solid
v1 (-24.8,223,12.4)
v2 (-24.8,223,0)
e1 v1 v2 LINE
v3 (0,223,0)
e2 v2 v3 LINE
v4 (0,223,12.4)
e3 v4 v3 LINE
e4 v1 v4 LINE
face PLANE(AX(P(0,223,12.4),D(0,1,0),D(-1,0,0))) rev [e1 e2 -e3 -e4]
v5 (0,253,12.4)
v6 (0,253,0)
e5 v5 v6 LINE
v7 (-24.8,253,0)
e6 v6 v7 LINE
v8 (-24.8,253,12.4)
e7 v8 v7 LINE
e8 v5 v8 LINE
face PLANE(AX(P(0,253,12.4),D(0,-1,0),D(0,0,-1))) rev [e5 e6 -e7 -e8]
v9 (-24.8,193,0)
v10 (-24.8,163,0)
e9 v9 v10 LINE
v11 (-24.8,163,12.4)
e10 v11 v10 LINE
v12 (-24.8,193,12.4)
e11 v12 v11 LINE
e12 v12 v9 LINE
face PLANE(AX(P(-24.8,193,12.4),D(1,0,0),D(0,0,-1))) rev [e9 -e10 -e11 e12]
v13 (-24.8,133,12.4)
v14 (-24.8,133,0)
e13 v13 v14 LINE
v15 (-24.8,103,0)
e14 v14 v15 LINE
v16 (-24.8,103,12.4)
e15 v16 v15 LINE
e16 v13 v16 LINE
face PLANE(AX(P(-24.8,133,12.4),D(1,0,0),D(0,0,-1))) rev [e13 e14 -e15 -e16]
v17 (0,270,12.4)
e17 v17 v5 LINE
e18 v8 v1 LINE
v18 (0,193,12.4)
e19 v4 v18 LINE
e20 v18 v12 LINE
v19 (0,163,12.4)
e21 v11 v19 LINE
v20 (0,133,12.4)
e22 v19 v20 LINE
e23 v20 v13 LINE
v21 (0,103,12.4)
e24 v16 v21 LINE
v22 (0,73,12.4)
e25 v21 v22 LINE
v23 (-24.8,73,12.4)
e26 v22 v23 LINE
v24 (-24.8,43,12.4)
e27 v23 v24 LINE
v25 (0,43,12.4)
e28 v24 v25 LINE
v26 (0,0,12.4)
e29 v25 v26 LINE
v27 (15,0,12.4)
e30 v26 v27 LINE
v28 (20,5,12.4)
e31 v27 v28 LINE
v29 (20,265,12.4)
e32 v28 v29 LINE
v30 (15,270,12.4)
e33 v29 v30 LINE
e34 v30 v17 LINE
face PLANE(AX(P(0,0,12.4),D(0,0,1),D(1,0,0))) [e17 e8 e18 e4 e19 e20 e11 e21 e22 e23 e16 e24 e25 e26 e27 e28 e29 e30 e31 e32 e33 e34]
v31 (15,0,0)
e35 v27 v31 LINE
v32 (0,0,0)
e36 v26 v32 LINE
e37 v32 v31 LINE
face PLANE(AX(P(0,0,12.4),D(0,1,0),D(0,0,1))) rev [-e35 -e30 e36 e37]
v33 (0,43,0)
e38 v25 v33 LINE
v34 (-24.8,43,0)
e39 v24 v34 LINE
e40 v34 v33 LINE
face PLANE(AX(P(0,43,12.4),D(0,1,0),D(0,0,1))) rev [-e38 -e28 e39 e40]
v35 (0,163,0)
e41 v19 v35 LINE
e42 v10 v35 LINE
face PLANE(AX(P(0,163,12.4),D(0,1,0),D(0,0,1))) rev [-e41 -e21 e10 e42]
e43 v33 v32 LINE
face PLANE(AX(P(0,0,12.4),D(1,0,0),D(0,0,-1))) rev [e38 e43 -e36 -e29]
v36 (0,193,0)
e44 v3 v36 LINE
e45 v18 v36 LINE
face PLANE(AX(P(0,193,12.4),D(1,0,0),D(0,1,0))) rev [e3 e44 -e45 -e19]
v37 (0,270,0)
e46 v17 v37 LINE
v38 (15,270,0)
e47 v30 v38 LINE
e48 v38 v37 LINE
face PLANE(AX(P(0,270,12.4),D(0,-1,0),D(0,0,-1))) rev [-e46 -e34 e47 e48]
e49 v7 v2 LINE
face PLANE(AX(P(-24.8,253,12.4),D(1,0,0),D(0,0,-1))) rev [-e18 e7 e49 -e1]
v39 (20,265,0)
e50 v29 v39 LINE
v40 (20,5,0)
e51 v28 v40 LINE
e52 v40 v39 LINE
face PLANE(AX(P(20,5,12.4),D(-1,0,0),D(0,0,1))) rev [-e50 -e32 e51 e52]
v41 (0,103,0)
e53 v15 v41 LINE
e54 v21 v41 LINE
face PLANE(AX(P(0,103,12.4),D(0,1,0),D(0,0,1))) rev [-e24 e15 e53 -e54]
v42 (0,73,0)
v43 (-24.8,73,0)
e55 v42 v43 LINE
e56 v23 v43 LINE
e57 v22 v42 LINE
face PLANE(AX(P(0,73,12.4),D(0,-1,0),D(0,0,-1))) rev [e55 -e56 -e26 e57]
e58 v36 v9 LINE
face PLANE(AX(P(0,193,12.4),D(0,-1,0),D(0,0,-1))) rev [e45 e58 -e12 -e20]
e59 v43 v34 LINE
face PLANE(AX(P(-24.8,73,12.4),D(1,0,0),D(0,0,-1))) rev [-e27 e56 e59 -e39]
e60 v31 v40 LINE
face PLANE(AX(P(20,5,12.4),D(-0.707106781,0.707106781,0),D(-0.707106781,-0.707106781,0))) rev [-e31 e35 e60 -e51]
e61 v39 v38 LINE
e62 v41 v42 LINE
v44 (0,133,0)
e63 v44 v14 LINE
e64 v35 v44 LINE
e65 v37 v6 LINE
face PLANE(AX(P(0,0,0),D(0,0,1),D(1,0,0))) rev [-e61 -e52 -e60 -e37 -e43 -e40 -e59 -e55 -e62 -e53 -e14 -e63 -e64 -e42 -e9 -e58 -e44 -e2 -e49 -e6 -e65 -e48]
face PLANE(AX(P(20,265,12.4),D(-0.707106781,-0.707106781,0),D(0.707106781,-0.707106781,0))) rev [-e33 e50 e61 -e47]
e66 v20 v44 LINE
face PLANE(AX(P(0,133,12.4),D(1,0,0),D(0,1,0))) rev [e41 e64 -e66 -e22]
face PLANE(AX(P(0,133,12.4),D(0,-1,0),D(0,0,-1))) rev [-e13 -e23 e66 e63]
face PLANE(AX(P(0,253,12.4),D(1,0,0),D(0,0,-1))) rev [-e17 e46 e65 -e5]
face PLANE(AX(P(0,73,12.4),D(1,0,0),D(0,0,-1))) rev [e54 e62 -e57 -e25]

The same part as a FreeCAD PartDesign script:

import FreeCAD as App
import Part
import Sketcher
Q = App.Units.Quantity


def add_polygon(sketch, points):
    """Adds a closed chain of lines whose ends are joined by coincident constraints."""
    first, n = sketch.GeometryCount, len(points)
    for a, b in zip(points, points[1:] + points[:1]):
        sketch.addGeometry(Part.LineSegment(App.Vector(*a, 0), App.Vector(*b, 0)), False)
    for i in range(n):
        sketch.addConstraint(Sketcher.Constraint("Coincident", first + i, 2, first + (i + 1) % n, 1))

doc = App.newDocument("Part")
body = doc.addObject("PartDesign::Body", "Body")

# Sketch on XY plane
sketch1 = body.newObject("Sketcher::SketchObject", "Sketch")
sketch1.AttachmentSupport = (doc.getObject("XY_Plane"), [""])
sketch1.MapMode = "FlatFace"
add_polygon(sketch1, [(0, 223), (0, 193), (-25, 193), (-25, 163), (0, 163), (0, 133), (-25, 133), (-25, 103), (0, 103), (0, 73), (-25, 73), (-25, 43), (0, 43), (0, 0), (15, 0), (20, 5), (20, 265), (15, 270), (0, 270), (0, 253), (-25, 253), (-25, 223)])  # lines 0-21
sketch1.addConstraint([
    Sketcher.Constraint("Vertical", 0),
    Sketcher.Constraint("Horizontal", 1),
    Sketcher.Constraint("Vertical", 2),
    Sketcher.Constraint("Horizontal", 3),
    Sketcher.Constraint("Vertical", 4),
    Sketcher.Constraint("Horizontal", 5),
    Sketcher.Constraint("Vertical", 6),
    Sketcher.Constraint("Horizontal", 7),
    Sketcher.Constraint("Vertical", 8),
    Sketcher.Constraint("Horizontal", 9),
    Sketcher.Constraint("Vertical", 10),
    Sketcher.Constraint("Horizontal", 11),
    Sketcher.Constraint("Vertical", 12),
    Sketcher.Constraint("Horizontal", 13),
    Sketcher.Constraint("Vertical", 15),
    Sketcher.Constraint("Horizontal", 17),
    Sketcher.Constraint("Vertical", 18),
    Sketcher.Constraint("Horizontal", 19),
    Sketcher.Constraint("Vertical", 20),
    Sketcher.Constraint("Horizontal", 21),
    Sketcher.Constraint("Coincident", 12, 2, -1, 1),
    Sketcher.Constraint("PointOnObject", 0, 2, -2),
    Sketcher.Constraint("PointOnObject", 3, 2, -2),
    Sketcher.Constraint("PointOnObject", 7, 2, -2),
    Sketcher.Constraint("PointOnObject", 17, 2, -2),
    Sketcher.Constraint("Perpendicular", 14, 16),
    Sketcher.Constraint("Vertical", 2, 2, 5, 2),
    Sketcher.Constraint("Vertical", 6, 2, 9, 2),
    Sketcher.Constraint("Vertical", 13, 2, 16, 2),
    Sketcher.Constraint("Vertical", 10, 2, 19, 2),
    Sketcher.Constraint("Equal", 0, 2),
    Sketcher.Constraint("Equal", 2, 4),
    Sketcher.Constraint("Equal", 4, 6),
    Sketcher.Constraint("Equal", 6, 8),
    Sketcher.Constraint("Equal", 8, 10),
    Sketcher.Constraint("Equal", 10, 20),
    Sketcher.Constraint("Equal", 14, 16),
    Sketcher.Constraint("DistanceX", 13, 1, 13, 2, Q("15 mm")),
    Sketcher.Constraint("DistanceY", 0, 2, 0, 1, Q("30 mm")),
    Sketcher.Constraint("DistanceY", 12, 2, 12, 1, Q("43 mm")),
    Sketcher.Constraint("DistanceY", 15, 1, 15, 2, Q("260 mm")),
    Sketcher.Constraint("DistanceY", 18, 2, 18, 1, Q("17 mm")),
    Sketcher.Constraint("DistanceX", 1, 2, 1, 1, Q("24.8 mm")),
])
pad1 = body.newObject("PartDesign::Pad", "Pad")
pad1.Profile = sketch1
pad1.Length = 12.4

doc.recompute()
